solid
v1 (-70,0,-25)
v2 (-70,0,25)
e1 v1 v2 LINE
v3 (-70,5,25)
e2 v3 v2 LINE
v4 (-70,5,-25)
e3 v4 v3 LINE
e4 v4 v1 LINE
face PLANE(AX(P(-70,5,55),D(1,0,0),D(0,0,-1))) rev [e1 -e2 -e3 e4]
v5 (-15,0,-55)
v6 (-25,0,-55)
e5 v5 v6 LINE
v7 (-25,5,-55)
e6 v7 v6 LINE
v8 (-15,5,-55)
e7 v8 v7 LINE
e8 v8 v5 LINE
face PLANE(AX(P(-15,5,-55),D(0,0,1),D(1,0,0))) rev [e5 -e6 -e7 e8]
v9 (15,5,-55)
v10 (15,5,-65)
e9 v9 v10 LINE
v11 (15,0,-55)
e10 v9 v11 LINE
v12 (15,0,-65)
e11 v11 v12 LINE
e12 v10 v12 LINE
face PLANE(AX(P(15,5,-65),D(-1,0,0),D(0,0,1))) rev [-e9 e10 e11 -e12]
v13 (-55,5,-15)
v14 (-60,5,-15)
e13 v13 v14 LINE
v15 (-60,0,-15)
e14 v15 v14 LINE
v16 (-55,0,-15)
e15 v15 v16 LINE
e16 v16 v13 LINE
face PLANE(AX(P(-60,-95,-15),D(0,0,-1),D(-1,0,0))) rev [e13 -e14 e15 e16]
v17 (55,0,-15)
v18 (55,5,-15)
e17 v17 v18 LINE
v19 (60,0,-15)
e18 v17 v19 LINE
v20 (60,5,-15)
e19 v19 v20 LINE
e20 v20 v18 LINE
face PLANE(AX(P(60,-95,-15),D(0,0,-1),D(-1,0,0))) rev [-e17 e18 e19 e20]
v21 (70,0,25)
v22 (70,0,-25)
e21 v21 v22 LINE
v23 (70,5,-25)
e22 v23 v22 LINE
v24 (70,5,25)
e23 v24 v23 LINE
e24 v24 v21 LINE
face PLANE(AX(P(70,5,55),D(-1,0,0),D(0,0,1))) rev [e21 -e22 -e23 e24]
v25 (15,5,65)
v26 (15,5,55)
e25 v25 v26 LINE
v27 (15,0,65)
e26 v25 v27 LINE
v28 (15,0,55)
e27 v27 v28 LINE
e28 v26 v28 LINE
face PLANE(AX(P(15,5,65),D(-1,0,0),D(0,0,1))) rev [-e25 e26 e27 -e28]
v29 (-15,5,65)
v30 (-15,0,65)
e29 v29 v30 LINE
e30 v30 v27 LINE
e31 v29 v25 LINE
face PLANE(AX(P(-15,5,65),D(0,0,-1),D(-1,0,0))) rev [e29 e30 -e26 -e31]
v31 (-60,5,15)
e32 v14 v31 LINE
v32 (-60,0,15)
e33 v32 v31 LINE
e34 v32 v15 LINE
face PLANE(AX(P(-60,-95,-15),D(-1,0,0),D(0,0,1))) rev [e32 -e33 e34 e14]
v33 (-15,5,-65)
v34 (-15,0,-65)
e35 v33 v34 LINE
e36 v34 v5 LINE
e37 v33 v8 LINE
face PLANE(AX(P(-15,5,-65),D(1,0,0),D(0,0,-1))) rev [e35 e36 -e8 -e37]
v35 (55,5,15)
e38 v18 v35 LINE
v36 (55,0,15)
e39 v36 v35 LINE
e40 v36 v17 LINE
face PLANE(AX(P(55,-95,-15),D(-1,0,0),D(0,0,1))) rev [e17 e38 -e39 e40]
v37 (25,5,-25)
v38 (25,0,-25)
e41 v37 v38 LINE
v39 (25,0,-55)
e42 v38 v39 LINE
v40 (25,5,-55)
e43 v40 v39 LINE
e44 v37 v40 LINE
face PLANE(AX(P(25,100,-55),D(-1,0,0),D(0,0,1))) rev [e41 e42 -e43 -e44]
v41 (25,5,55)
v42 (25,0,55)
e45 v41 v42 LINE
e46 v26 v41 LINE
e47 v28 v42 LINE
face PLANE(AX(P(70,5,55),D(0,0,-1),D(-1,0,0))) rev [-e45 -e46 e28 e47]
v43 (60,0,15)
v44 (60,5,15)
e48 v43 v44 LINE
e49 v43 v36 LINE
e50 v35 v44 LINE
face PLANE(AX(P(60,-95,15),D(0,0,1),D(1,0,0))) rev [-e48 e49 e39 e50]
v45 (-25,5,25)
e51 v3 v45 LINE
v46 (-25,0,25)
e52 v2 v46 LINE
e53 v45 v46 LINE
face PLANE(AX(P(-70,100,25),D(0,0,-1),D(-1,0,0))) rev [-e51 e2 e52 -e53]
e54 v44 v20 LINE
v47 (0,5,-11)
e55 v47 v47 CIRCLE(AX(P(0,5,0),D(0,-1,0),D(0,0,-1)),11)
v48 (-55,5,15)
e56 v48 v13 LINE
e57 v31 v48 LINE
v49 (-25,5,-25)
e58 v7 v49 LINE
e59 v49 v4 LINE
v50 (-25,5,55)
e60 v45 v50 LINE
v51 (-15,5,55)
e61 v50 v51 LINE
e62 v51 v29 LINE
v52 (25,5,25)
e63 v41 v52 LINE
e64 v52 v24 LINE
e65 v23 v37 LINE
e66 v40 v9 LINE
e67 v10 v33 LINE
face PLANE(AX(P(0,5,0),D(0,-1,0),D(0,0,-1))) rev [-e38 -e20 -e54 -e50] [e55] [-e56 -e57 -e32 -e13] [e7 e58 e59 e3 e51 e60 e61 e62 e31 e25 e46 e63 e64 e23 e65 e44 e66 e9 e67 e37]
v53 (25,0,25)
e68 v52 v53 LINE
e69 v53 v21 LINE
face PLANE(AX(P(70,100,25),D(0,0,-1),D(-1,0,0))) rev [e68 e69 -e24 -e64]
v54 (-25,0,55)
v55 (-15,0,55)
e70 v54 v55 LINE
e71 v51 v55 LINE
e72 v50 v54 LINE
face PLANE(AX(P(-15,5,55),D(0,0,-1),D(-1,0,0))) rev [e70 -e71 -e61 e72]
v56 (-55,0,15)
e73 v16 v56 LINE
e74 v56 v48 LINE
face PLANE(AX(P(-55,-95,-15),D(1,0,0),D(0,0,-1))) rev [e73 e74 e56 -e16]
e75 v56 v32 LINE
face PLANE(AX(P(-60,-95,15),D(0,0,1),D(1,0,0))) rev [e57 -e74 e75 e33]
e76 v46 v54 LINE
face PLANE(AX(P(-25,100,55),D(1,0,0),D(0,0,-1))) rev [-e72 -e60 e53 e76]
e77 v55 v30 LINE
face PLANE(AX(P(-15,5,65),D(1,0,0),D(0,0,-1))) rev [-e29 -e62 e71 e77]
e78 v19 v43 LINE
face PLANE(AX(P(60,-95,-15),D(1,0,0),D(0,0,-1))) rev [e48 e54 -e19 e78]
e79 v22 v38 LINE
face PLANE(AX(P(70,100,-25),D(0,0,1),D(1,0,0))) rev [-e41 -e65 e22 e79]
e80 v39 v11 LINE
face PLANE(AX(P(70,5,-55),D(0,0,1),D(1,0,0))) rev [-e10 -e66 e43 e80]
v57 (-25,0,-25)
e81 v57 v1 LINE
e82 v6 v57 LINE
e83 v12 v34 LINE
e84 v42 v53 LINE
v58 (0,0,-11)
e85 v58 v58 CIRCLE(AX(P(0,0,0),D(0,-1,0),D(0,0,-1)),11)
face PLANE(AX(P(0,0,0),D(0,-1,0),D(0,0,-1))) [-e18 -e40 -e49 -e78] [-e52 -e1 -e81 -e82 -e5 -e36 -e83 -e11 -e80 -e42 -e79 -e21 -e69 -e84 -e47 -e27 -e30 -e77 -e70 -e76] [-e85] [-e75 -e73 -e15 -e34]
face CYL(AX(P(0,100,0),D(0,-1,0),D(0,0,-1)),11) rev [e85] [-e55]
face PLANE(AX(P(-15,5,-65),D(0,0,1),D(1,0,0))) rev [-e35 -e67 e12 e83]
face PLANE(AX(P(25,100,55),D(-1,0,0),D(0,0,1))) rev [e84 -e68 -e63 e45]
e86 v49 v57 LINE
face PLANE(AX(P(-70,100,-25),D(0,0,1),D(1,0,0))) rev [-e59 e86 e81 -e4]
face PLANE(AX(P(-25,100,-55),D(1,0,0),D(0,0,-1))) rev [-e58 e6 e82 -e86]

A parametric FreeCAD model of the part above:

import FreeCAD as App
import Part
import Sketcher


def add_polygon(sketch, points):
    """Adds a closed chain of lines whose ends are joined by coincident constraints."""
    first, n = sketch.GeometryCount, len(points)
    for a, b in zip(points, points[1:] + points[:1]):
        sketch.addGeometry(Part.LineSegment(App.Vector(*a, 0), App.Vector(*b, 0)), False)
    for i in range(n):
        sketch.addConstraint(Sketcher.Constraint("Coincident", first + i, 2, first + (i + 1) % n, 1))

doc = App.newDocument("Part")
body = doc.addObject("PartDesign::Body", "Body")

# Sketch on XZ plane
sketch1 = body.newObject("Sketcher::SketchObject", "Sketch")
sketch1.AttachmentSupport = (doc.getObject("XZ_Plane"), [""])
sketch1.MapMode = "FlatFace"
add_polygon(sketch1, [(15, 55), (70, 55), (70, -55), (15, -55), (15, -65), (-15, -65), (-15, -55), (-70, -55), (-70, 55), (-15, 55), (-15, 65), (15, 65)])  # lines 0-11
sketch1.addConstraint([
    Sketcher.Constraint("Horizontal", 0),
    Sketcher.Constraint("Vertical", 1),
    Sketcher.Constraint("Horizontal", 2),
    Sketcher.Constraint("Vertical", 3),
    Sketcher.Constraint("Horizontal", 4),
    Sketcher.Constraint("Vertical", 5),
    Sketcher.Constraint("Horizontal", 6),
    Sketcher.Constraint("Vertical", 7),
    Sketcher.Constraint("Horizontal", 8),
    Sketcher.Constraint("Vertical", 9),
    Sketcher.Constraint("Horizontal", 10),
    Sketcher.Constraint("Vertical", 11),
    Sketcher.Constraint("Symmetric", 0, 2, 6, 2, -1, 1),
    Sketcher.Constraint("Symmetric", 2, 2, 8, 2, -1, 1),
    Sketcher.Constraint("Symmetric", 4, 2, 10, 2, -1, 1),
    Sketcher.Constraint("Symmetric", 2, 2, 5, 2, -2),
    Sketcher.Constraint("DistanceX", 0, 1, 0, 2, 55.0),
    Sketcher.Constraint("DistanceX", 4, 2, 4, 1, 30.0),
    Sketcher.Constraint("DistanceY", 1, 2, 1, 1, 110.0),
    Sketcher.Constraint("DistanceY", 3, 2, 3, 1, 10.0),
])
pad1 = body.newObject("PartDesign::Pad", "Pad")
pad1.Profile = sketch1
pad1.Length = 5
pad1.Reversed = True

# Sketch on XZ plane
sketch2 = body.newObject("Sketcher::SketchObject", "Sketch001")
sketch2.AttachmentSupport = (doc.getObject("XZ_Plane"), [""])
sketch2.MapMode = "FlatFace"
sketch2.AttachmentOffset = App.Placement(App.Vector(0, 0, -5), App.Rotation())
add_polygon(sketch2, [(-60, -15), (-60, 15), (-55, 15), (-55, -15)])  # lines 0-3
add_polygon(sketch2, [(55, -15), (55, 15), (60, 15), (60, -15)])  # lines 4-7
sketch2.addConstraint([
    Sketcher.Constraint("Vertical", 0),
    Sketcher.Constraint("Horizontal", 1),
    Sketcher.Constraint("Vertical", 2),
    Sketcher.Constraint("Horizontal", 3),
    Sketcher.Constraint("Vertical", 4),
    Sketcher.Constraint("Horizontal", 5),
    Sketcher.Constraint("Vertical", 6),
    Sketcher.Constraint("Horizontal", 7),
    Sketcher.Constraint("Symmetric", 2, 2, 4, 2, -1, 1),
    Sketcher.Constraint("Symmetric", 0, 2, 6, 2, -1, 1),
    Sketcher.Constraint("Horizontal", 1, 2, 4, 2),
    Sketcher.Constraint("DistanceX", 1, 1, 1, 2, 5.0),
    Sketcher.Constraint("DistanceY", 0, 1, 0, 2, 30.0),
    Sketcher.Constraint("DistanceX", 0, 2, -1, 1, 60.0),
])
pocket1 = body.newObject("PartDesign::Pocket", "Pocket")
pocket1.Profile = sketch2
pocket1.Length = 100
pocket1.Reversed = True

# Sketch on XZ plane
sketch3 = body.newObject("Sketcher::SketchObject", "Sketch002")
sketch3.AttachmentSupport = (doc.getObject("XZ_Plane"), [""])
sketch3.MapMode = "FlatFace"
sketch3.addGeometry(Part.Circle(App.Vector(0, 0, 0), App.Vector(0, 0, 1), 11), False)
sketch3.addConstraint([
    Sketcher.Constraint("Coincident", 0, 3, -1, 1),
    Sketcher.Constraint("Diameter", 0, 22.0),
])
pocket2 = body.newObject("PartDesign::Pocket", "Pocket001")
pocket2.Profile = sketch3
pocket2.Length = 100

# Sketch on XZ plane
sketch4 = body.newObject("Sketcher::SketchObject", "Sketch003")
sketch4.AttachmentSupport = (doc.getObject("XZ_Plane"), [""])
sketch4.MapMode = "FlatFace"
add_polygon(sketch4, [(-25, 25), (-25, 55), (-70, 55), (-70, 25)])  # lines 0-3
add_polygon(sketch4, [(-25, -55), (-25, -25), (-70, -25), (-70, -55)])  # lines 4-7
add_polygon(sketch4, [(70, -55), (70, -25), (25, -25), (25, -55)])  # lines 8-11
add_polygon(sketch4, [(70, 25), (70, 55), (25, 55), (25, 25)])  # lines 12-15
sketch4.addConstraint([
    Sketcher.Constraint("Vertical", 0),
    Sketcher.Constraint("Horizontal", 1),
    Sketcher.Constraint("Vertical", 2),
    Sketcher.Constraint("Horizontal", 3),
    Sketcher.Constraint("Vertical", 4),
    Sketcher.Constraint("Horizontal", 5),
    Sketcher.Constraint("Vertical", 6),
    Sketcher.Constraint("Horizontal", 7),
    Sketcher.Constraint("Vertical", 8),
    Sketcher.Constraint("Horizontal", 9),
    Sketcher.Constraint("Vertical", 10),
    Sketcher.Constraint("Horizontal", 11),
    Sketcher.Constraint("Vertical", 12),
    Sketcher.Constraint("Horizontal", 13),
    Sketcher.Constraint("Vertical", 14),
    Sketcher.Constraint("Horizontal", 15),
    Sketcher.Constraint("Symmetric", 2, 2, 8, 2, -1, 1),
    Sketcher.Constraint("Symmetric", 0, 2, 10, 2, -1, 1),
    Sketcher.Constraint("Symmetric", 6, 2, 12, 2, -1, 1),
    Sketcher.Constraint("Symmetric", 4, 2, 14, 2, -1, 1),
    Sketcher.Constraint("Symmetric", 5, 2, 8, 2, -2),
    Sketcher.Constraint("Symmetric", 7, 2, 10, 2, -2),
    Sketcher.Constraint("DistanceX", 1, 2, 1, 1, 45.0),
    Sketcher.Constraint("DistanceY", 0, 1, 0, 2, 30.0),
    Sketcher.Constraint("DistanceX", 0, 2, -1, 1, 25.0),
    Sketcher.Constraint("DistanceY", -1, 1, 0, 2, 55.0),
])
pocket3 = body.newObject("PartDesign::Pocket", "Pocket002")
pocket3.Profile = sketch4
pocket3.Length = 100

doc.recompute()
